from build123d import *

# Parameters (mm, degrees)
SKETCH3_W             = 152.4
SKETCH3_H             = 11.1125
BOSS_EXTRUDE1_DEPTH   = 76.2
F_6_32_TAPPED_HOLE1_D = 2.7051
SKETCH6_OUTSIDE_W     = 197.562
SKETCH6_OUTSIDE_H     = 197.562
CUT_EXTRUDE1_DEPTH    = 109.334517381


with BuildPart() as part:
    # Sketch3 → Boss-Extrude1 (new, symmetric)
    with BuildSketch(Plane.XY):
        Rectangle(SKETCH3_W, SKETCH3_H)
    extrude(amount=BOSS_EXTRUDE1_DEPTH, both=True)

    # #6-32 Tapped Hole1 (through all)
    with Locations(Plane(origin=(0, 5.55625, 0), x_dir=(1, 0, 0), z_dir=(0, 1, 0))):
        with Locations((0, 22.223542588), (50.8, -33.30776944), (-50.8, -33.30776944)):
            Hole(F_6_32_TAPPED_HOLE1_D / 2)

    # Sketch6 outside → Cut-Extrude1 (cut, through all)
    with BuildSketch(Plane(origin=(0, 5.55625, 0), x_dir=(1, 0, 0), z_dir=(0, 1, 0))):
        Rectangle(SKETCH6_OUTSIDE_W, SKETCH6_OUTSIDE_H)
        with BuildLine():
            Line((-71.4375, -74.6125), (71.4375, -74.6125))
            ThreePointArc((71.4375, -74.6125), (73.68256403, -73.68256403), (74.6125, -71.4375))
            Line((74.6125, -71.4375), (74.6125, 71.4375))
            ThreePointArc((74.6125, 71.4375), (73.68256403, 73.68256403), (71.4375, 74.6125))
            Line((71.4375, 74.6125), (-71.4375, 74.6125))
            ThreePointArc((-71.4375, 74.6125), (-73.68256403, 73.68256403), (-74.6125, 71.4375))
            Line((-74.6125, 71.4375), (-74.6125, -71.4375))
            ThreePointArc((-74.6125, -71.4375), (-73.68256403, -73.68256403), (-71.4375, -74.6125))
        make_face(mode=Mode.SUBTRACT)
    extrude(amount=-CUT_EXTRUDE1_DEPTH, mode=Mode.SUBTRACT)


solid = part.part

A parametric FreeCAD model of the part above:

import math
import FreeCAD as App
import Part
import Sketcher
from FreeCAD import Vector
Q = App.Units.Quantity

doc = App.newDocument("Part")
body = doc.addObject("PartDesign::Body", "Body")

# Sketch on XY plane
sketch1 = doc.addObject("Sketcher::SketchObject", "Sketch")
body.addObject(sketch1)
sketch1.AttachmentSupport = (doc.XY_Plane, [""])
sketch1.MapMode = "FlatFace"
sketch1.addGeometry(Part.LineSegment(Vector(-76, 6, 0), Vector(-76, -6, 0)), False)
sketch1.addGeometry(Part.LineSegment(Vector(-76, -6, 0), Vector(76, -6, 0)), False)
sketch1.addGeometry(Part.LineSegment(Vector(76, -6, 0), Vector(76, 6, 0)), False)
sketch1.addGeometry(Part.LineSegment(Vector(76, 6, 0), Vector(-76, 6, 0)), False)
sketch1.addConstraint(Sketcher.Constraint("Coincident", 0, 2, 1, 1))
sketch1.addConstraint(Sketcher.Constraint("Coincident", 1, 2, 2, 1))
sketch1.addConstraint(Sketcher.Constraint("Coincident", 2, 2, 3, 1))
sketch1.addConstraint(Sketcher.Constraint("Coincident", 3, 2, 0, 1))
sketch1.addConstraint(Sketcher.Constraint("Vertical", 0))
sketch1.addConstraint(Sketcher.Constraint("Horizontal", 1))
sketch1.addConstraint(Sketcher.Constraint("Vertical", 2))
sketch1.addConstraint(Sketcher.Constraint("Horizontal", 3))
sketch1.addConstraint(Sketcher.Constraint("Symmetric", 0, 2, 2, 2, -1, 1))
sketch1.addConstraint(Sketcher.Constraint("DistanceX", 1, 1, 1, 2, Q("6 in")))
sketch1.addConstraint(Sketcher.Constraint("DistanceY", 0, 2, 0, 1, Q("0.4375 in")))
pad1 = doc.addObject("PartDesign::Pad", "Pad")
body.addObject(pad1)
pad1.Profile = sketch1
pad1.Length = Q("6 in")
pad1.Midplane = True

# Sketch on XZ plane
sketch2 = doc.addObject("Sketcher::SketchObject", "Sketch001")
body.addObject(sketch2)
sketch2.AttachmentSupport = (doc.XZ_Plane, [""])
sketch2.MapMode = "FlatFace"
sketch2.AttachmentOffset = App.Placement(Vector(0, 0, -0.21875 * 25.4), App.Rotation())
sketch2.addGeometry(Part.Circle(Vector(0, -22.2, 0), Vector(0, 0, 1), 1.4), False)
sketch2.addGeometry(Part.Circle(Vector(50.8, 33.3, 0), Vector(0, 0, 1), 1.4), False)
sketch2.addGeometry(Part.Circle(Vector(-50.8, 33.3, 0), Vector(0, 0, 1), 1.4), False)
sketch2.addConstraint(Sketcher.Constraint("Equal", 0, 1))
sketch2.addConstraint(Sketcher.Constraint("Equal", 1, 2))
sketch2.addConstraint(Sketcher.Constraint("Symmetric", 1, 3, 2, 3, -2))
sketch2.addConstraint(Sketcher.Constraint("PointOnObject", 0, 3, -2))
sketch2.addConstraint(Sketcher.Constraint("DistanceX", -1, 1, 1, 3, Q("2 in")))
sketch2.addConstraint(Sketcher.Constraint("Diameter", 0, Q("0.1065 in")))
sketch2.addConstraint(Sketcher.Constraint("DistanceY", -1, 1, 1, 3, 33.307769))
sketch2.addConstraint(Sketcher.Constraint("DistanceY", 0, 3, -1, 1, 22.223543))
doc.recompute()
hole = doc.addObject("PartDesign::Hole", "Hole")
body.addObject(hole)
hole.Profile = sketch2
hole.ThreadType = "None"
hole.Diameter = Q("0.1065 in")
hole.DepthType = "ThroughAll"
hole.Reversed = True

# Sketch on XZ plane
sketch3 = doc.addObject("Sketcher::SketchObject", "Sketch002")
body.addObject(sketch3)
sketch3.AttachmentSupport = (doc.XZ_Plane, [""])
sketch3.MapMode = "FlatFace"
sketch3.AttachmentOffset = App.Placement(Vector(0, 0, -0.21875 * 25.4), App.Rotation())
sketch3.addGeometry(Part.LineSegment(Vector(-98.8, -98.8, 0), Vector(-98.8, 98.8, 0)), False)
sketch3.addGeometry(Part.LineSegment(Vector(-98.8, 98.8, 0), Vector(98.8, 98.8, 0)), False)
sketch3.addGeometry(Part.LineSegment(Vector(98.8, 98.8, 0), Vector(98.8, -98.8, 0)), False)
sketch3.addGeometry(Part.LineSegment(Vector(98.8, -98.8, 0), Vector(-98.8, -98.8, 0)), False)
sketch3.addGeometry(Part.LineSegment(Vector(71.4, 74.6, 0), Vector(-71.4, 74.6, 0)), False)
sketch3.addGeometry(Part.ArcOfCircle(Part.Circle(Vector(-71.4, 71.4, 0), Vector(0, 0, 1), 3.2), math.radians(90), math.radians(180)), False)
sketch3.addGeometry(Part.LineSegment(Vector(-74.6, 71.4, 0), Vector(-74.6, -71.4, 0)), False)
sketch3.addGeometry(Part.ArcOfCircle(Part.Circle(Vector(-71.4, -71.4, 0), Vector(0, 0, 1), 3.2), math.radians(-180), math.radians(-90)), False)
sketch3.addGeometry(Part.LineSegment(Vector(-71.4, -74.6, 0), Vector(71.4, -74.6, 0)), False)
sketch3.addGeometry(Part.ArcOfCircle(Part.Circle(Vector(71.4, -71.4, 0), Vector(0, 0, 1), 3.2), math.radians(-90), math.radians(0)), False)
sketch3.addGeometry(Part.LineSegment(Vector(74.6, -71.4, 0), Vector(74.6, 71.4, 0)), False)
sketch3.addGeometry(Part.ArcOfCircle(Part.Circle(Vector(71.4, 71.4, 0), Vector(0, 0, 1), 3.2), math.radians(0), math.radians(90)), False)
sketch3.addConstraint(Sketcher.Constraint("Coincident", 0, 2, 1, 1))
sketch3.addConstraint(Sketcher.Constraint("Coincident", 1, 2, 2, 1))
sketch3.addConstraint(Sketcher.Constraint("Coincident", 2, 2, 3, 1))
sketch3.addConstraint(Sketcher.Constraint("Coincident", 3, 2, 0, 1))
sketch3.addConstraint(Sketcher.Constraint("Tangent", 4, 2, 5, 1))
sketch3.addConstraint(Sketcher.Constraint("Tangent", 5, 2, 6, 1))
sketch3.addConstraint(Sketcher.Constraint("Tangent", 6, 2, 7, 1))
sketch3.addConstraint(Sketcher.Constraint("Tangent", 7, 2, 8, 1))
sketch3.addConstraint(Sketcher.Constraint("Tangent", 8, 2, 9, 1))
sketch3.addConstraint(Sketcher.Constraint("Tangent", 9, 2, 10, 1))
sketch3.addConstraint(Sketcher.Constraint("Tangent", 10, 2, 11, 1))
sketch3.addConstraint(Sketcher.Constraint("Tangent", 11, 2, 4, 1))
sketch3.addConstraint(Sketcher.Constraint("Vertical", 0))
sketch3.addConstraint(Sketcher.Constraint("Horizontal", 1))
sketch3.addConstraint(Sketcher.Constraint("Vertical", 2))
sketch3.addConstraint(Sketcher.Constraint("Horizontal", 3))
sketch3.addConstraint(Sketcher.Constraint("Horizontal", 4))
sketch3.addConstraint(Sketcher.Constraint("Vertical", 6))
sketch3.addConstraint(Sketcher.Constraint("Horizontal", 8))
sketch3.addConstraint(Sketcher.Constraint("Vertical", 10))
sketch3.addConstraint(Sketcher.Constraint("Equal", 5, 7))
sketch3.addConstraint(Sketcher.Constraint("Equal", 7, 9))
sketch3.addConstraint(Sketcher.Constraint("Equal", 9, 11))
sketch3.addConstraint(Sketcher.Constraint("Symmetric", 5, 3, 9, 3, -1, 1))
sketch3.addConstraint(Sketcher.Constraint("Symmetric", 0, 2, 2, 2, -1, 1))
sketch3.addConstraint(Sketcher.Constraint("Equal", 3, 0))
sketch3.addConstraint(Sketcher.Constraint("Equal", 8, 6))
sketch3.addConstraint(Sketcher.Constraint("Radius", 5, Q("0.125 in")))
sketch3.addConstraint(Sketcher.Constraint("DistanceX", 4, 2, 4, 1, Q("5.625 in")))
sketch3.addConstraint(Sketcher.Constraint("DistanceX", 1, 1, 1, 2, 197.562))
pocket1 = doc.addObject("PartDesign::Pocket", "Pocket")
body.addObject(pocket1)
pocket1.Profile = sketch3
pocket1.Type = "ThroughAll"
pocket1.Reversed = True

doc.recompute()
